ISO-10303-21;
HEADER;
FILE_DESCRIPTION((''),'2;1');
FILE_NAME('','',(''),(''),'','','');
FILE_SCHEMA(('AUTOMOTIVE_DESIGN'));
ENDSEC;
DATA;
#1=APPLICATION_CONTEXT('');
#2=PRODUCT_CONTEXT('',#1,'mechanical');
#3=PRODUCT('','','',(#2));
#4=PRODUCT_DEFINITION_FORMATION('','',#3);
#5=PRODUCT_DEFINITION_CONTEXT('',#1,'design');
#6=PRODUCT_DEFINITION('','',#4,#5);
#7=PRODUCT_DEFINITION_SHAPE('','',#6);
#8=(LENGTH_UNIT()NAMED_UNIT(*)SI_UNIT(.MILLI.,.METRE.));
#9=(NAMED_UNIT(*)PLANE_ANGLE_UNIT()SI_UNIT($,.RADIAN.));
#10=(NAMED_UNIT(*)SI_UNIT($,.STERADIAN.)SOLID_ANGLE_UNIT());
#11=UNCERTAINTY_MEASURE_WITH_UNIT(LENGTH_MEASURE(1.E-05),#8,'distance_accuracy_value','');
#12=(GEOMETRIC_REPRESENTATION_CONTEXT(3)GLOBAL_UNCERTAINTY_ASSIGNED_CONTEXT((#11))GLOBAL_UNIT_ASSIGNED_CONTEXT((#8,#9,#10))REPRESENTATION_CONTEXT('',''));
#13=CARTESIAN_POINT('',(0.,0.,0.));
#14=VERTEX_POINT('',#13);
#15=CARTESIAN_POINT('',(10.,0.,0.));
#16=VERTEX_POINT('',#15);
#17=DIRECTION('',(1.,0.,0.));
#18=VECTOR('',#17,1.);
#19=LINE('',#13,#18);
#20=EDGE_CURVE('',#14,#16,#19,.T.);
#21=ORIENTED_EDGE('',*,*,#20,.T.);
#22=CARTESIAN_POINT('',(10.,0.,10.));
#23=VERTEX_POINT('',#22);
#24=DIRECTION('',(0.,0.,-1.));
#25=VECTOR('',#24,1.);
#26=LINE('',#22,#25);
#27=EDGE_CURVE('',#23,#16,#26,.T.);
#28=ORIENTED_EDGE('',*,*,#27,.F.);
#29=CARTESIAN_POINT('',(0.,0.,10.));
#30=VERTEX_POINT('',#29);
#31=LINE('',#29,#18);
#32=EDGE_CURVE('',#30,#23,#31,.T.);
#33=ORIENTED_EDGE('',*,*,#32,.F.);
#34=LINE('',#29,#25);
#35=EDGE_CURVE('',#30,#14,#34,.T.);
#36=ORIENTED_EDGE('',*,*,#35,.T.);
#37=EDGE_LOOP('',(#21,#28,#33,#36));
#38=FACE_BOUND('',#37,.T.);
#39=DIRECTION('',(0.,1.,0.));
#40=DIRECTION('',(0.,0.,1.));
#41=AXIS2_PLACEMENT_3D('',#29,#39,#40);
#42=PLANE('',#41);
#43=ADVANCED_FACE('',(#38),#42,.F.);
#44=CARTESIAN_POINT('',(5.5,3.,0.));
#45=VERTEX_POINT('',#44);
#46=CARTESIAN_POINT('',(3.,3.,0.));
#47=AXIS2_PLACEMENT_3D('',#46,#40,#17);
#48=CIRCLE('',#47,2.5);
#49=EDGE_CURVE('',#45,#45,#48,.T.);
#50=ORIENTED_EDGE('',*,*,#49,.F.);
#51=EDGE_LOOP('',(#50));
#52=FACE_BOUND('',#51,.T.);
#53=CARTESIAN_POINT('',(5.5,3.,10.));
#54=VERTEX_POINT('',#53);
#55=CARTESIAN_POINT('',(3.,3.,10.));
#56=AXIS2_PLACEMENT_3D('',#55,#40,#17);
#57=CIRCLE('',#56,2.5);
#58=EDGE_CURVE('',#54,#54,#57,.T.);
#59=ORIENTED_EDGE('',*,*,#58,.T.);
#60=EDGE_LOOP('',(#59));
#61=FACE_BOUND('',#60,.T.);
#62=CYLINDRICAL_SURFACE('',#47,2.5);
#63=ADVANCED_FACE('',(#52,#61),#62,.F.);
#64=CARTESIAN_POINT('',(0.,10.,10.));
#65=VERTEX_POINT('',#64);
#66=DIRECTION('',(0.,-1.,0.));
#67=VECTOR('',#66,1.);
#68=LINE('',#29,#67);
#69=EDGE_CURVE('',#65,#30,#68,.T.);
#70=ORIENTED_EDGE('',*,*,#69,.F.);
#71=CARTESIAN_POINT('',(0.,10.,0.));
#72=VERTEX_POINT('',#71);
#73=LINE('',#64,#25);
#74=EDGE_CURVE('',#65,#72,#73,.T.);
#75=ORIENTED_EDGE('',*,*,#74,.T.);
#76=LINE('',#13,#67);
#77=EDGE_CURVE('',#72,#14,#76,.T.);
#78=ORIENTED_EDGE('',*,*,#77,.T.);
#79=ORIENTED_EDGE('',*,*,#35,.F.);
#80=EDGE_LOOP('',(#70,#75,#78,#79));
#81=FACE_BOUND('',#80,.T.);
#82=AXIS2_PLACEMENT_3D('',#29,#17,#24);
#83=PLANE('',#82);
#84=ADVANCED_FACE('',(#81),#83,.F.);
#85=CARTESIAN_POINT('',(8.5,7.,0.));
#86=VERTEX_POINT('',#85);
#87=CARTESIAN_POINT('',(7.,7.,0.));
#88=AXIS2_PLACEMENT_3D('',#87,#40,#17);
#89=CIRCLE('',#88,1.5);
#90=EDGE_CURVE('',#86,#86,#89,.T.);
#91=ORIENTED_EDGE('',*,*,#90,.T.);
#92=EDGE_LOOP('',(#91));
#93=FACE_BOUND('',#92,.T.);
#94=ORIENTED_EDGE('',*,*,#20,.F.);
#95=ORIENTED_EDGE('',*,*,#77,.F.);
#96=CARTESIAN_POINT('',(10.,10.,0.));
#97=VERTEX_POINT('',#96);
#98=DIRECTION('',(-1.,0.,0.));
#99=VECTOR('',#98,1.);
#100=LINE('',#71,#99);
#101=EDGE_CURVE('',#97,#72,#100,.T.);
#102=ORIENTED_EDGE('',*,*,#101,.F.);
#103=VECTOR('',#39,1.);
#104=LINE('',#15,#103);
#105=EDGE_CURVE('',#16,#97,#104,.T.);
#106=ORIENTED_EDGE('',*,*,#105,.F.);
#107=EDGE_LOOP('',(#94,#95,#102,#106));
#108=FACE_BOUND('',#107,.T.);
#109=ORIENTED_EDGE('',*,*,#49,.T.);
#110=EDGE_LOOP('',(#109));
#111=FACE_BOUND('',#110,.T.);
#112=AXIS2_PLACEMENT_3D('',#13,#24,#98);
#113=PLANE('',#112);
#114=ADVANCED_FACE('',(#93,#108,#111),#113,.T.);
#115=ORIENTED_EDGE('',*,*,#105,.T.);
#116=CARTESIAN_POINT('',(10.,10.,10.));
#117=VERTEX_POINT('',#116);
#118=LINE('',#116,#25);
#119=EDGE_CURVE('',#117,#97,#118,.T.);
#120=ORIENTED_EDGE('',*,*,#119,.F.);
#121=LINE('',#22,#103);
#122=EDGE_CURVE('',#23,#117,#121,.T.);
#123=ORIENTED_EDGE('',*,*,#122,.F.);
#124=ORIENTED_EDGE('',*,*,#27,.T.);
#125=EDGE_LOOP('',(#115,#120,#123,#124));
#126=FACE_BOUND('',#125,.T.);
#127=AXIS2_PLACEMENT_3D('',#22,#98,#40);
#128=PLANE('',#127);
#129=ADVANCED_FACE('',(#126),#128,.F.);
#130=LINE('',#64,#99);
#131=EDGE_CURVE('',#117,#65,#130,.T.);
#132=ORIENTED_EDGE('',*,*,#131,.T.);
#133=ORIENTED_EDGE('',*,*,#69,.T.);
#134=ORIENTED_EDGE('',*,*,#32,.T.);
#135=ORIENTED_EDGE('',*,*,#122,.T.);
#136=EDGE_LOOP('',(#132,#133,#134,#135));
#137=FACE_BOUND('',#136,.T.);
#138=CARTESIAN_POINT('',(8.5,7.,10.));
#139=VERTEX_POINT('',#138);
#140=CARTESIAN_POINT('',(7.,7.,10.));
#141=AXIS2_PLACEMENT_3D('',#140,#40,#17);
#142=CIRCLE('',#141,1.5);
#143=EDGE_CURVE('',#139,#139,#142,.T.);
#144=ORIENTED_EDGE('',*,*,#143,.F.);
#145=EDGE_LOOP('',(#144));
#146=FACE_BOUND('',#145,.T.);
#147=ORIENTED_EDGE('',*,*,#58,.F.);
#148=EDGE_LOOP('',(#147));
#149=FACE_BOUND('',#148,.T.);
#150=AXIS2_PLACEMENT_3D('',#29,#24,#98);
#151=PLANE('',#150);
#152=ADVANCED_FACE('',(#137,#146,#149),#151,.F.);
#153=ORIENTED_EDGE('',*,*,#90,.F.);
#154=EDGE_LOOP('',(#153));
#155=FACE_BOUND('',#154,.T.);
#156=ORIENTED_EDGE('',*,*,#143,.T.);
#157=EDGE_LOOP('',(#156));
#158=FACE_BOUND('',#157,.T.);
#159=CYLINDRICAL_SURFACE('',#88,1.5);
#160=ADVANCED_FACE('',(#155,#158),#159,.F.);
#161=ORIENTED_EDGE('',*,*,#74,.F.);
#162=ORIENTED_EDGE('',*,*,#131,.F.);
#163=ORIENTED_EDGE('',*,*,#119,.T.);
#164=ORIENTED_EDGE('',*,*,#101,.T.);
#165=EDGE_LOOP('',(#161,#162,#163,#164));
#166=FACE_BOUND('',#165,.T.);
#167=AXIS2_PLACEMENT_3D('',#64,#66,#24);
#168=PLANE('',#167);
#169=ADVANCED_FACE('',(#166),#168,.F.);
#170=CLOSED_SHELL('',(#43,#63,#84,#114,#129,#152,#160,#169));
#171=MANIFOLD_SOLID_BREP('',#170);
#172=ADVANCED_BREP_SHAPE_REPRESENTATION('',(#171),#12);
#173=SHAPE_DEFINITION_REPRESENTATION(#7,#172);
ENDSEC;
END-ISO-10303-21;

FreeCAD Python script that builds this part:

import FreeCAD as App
import Part
import Sketcher

V = App.Vector

doc = App.newDocument("Part")
body = doc.addObject("PartDesign::Body", "Body")

sketch1 = body.newObject("Sketcher::SketchObject", "Sketch")
sketch1.AttachmentSupport = (doc.getObject("XY_Plane"), [""])
sketch1.MapMode = "FlatFace"
sketch1.addGeometry([
    Part.LineSegment(V(0, 10, 0), V(0, 0, 0)),
    Part.LineSegment(V(0, 0, 0), V(10, 0, 0)),
    Part.LineSegment(V(10, 0, 0), V(10, 10, 0)),
    Part.LineSegment(V(10, 10, 0), V(0, 10, 0)),
], False)
sketch1.addConstraint([
    Sketcher.Constraint("Coincident", 0, 2, 1, 1),
    Sketcher.Constraint("Coincident", 1, 2, 2, 1),
    Sketcher.Constraint("Coincident", 2, 2, 3, 1),
    Sketcher.Constraint("Coincident", 3, 2, 0, 1),
    Sketcher.Constraint("Vertical", 0),
    Sketcher.Constraint("Horizontal", 1),
    Sketcher.Constraint("Vertical", 2),
    Sketcher.Constraint("Horizontal", 3),
    Sketcher.Constraint("Coincident", 0, 2, -1, 1),
    Sketcher.Constraint("Equal", 3, 0),
    Sketcher.Constraint("DistanceX", 1, 1, 1, 2, 10.0),
])
pad1 = body.newObject("PartDesign::Pad", "Pad")
pad1.Profile = sketch1
pad1.Length = 10

sketch2 = body.newObject("Sketcher::SketchObject", "Sketch001")
sketch2.AttachmentSupport = (doc.getObject("XY_Plane"), [""])
sketch2.MapMode = "FlatFace"
sketch2.AttachmentOffset = App.Placement(V(0, 0, 10), App.Rotation())
sketch2.addGeometry(Part.Circle(V(3, 3, 0), V(0, 0, 1), 2.5), False)
sketch2.addConstraint([
    Sketcher.Constraint("Diameter", 0, 5.0),
    Sketcher.Constraint("DistanceX", -1, 1, 0, 3, 3.0),
    Sketcher.Constraint("DistanceY", -1, 1, 0, 3, 3.0),
])
pocket1 = body.newObject("PartDesign::Pocket", "Pocket")
pocket1.Profile = sketch2
pocket1.Type = "ThroughAll"

sketch3 = body.newObject("Sketcher::SketchObject", "Sketch002")
sketch3.AttachmentSupport = (doc.getObject("XY_Plane"), [""])
sketch3.MapMode = "FlatFace"
sketch3.AttachmentOffset = App.Placement(V(0, 0, 10), App.Rotation())
sketch3.addGeometry(Part.Circle(V(7, 7, 0), V(0, 0, 1), 1.5), False)
sketch3.addConstraint([
    Sketcher.Constraint("Diameter", 0, 3.0),
    Sketcher.Constraint("DistanceX", -1, 1, 0, 3, 7.0),
    Sketcher.Constraint("DistanceY", -1, 1, 0, 3, 7.0),
])
pocket2 = body.newObject("PartDesign::Pocket", "Pocket001")
pocket2.Profile = sketch3
pocket2.Type = "ThroughAll"

doc.recompute()
